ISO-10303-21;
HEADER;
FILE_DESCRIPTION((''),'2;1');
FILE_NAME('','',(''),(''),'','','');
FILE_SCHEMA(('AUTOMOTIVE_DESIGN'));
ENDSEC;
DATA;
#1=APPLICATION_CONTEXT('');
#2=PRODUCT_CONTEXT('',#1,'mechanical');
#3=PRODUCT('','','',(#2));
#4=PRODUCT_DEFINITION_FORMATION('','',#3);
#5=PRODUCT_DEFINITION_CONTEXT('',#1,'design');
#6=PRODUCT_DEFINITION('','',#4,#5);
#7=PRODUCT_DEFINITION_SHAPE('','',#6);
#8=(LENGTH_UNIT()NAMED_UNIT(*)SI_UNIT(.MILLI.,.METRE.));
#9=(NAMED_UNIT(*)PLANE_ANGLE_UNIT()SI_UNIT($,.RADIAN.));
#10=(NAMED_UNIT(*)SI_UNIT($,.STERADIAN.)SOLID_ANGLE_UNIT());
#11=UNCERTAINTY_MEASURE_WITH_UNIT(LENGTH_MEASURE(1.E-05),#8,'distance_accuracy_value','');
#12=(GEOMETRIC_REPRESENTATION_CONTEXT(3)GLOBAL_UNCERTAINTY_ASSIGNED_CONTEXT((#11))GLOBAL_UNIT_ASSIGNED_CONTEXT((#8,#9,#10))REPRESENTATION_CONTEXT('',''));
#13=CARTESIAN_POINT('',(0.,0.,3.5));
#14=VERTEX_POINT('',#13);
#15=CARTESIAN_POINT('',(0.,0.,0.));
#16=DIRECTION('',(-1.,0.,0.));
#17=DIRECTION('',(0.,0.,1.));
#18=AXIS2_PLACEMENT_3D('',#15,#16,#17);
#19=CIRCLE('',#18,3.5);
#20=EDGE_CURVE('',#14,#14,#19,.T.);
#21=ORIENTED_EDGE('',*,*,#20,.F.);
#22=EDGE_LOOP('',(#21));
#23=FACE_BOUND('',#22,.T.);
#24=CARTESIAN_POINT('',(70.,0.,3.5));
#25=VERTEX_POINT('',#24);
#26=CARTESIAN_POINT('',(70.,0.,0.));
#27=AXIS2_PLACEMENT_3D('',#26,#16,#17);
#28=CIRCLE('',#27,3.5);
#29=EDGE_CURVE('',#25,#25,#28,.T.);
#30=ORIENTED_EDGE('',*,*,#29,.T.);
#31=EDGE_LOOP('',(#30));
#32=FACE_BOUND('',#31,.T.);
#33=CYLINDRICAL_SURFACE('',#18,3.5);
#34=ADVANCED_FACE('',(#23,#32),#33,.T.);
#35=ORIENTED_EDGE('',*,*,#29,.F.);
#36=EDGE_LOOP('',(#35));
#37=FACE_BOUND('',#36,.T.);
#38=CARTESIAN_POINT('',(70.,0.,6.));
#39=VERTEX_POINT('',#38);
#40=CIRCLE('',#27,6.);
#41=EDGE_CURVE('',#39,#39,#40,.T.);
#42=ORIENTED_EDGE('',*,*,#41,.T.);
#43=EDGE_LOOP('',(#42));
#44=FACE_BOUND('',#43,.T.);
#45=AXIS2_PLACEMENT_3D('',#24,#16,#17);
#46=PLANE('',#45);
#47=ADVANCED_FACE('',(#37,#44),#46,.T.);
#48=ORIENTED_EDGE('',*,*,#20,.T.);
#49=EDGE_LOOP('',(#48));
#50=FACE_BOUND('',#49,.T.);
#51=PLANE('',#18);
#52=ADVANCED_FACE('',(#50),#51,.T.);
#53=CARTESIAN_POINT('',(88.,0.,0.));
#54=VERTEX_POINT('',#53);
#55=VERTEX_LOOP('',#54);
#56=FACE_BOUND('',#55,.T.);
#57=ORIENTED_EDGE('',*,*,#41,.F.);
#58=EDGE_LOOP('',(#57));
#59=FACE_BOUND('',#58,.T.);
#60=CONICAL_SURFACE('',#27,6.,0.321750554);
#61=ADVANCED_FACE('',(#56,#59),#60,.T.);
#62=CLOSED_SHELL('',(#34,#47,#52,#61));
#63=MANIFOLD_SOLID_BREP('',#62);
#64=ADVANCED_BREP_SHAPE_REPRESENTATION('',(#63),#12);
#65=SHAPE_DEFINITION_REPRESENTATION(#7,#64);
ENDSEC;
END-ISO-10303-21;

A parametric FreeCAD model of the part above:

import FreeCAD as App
import Part
import Sketcher

V = App.Vector
Q = App.Units.Quantity

doc = App.newDocument("Part")
body = doc.addObject("PartDesign::Body", "Body")

# Sketch on XZ plane
sketch1 = body.newObject("Sketcher::SketchObject", "Sketch")
sketch1.AttachmentSupport = (doc.getObject("XZ_Plane"), [""])
sketch1.MapMode = "FlatFace"
sketch1.addGeometry(Part.LineSegment(V(70, 6, 0), V(88, 0, 0)), False)
sketch1.addGeometry(Part.LineSegment(V(88, 0, 0), V(0, 0, 0)), False)
sketch1.addGeometry(Part.LineSegment(V(0, 0, 0), V(0, 3.5, 0)), False)
sketch1.addGeometry(Part.LineSegment(V(0, 3.5, 0), V(70, 3.5, 0)), False)
sketch1.addGeometry(Part.LineSegment(V(70, 3.5, 0), V(70, 6, 0)), False)
sketch1.addConstraint(Sketcher.Constraint("Coincident", 0, 2, 1, 1))
sketch1.addConstraint(Sketcher.Constraint("Coincident", 1, 2, 2, 1))
sketch1.addConstraint(Sketcher.Constraint("Coincident", 2, 2, 3, 1))
sketch1.addConstraint(Sketcher.Constraint("Coincident", 3, 2, 4, 1))
sketch1.addConstraint(Sketcher.Constraint("Coincident", 4, 2, 0, 1))
sketch1.addConstraint(Sketcher.Constraint("Horizontal", 1))
sketch1.addConstraint(Sketcher.Constraint("Vertical", 2))
sketch1.addConstraint(Sketcher.Constraint("Horizontal", 3))
sketch1.addConstraint(Sketcher.Constraint("Vertical", 4))
sketch1.addConstraint(Sketcher.Constraint("Coincident", 1, 2, -1, 1))
sketch1.addConstraint(Sketcher.Constraint("DistanceX", 1, 2, 1, 1, Q("88 mm")))
sketch1.addConstraint(Sketcher.Constraint("DistanceX", 3, 1, 3, 2, Q("70 mm")))
sketch1.addConstraint(Sketcher.Constraint("DistanceY", 2, 1, 2, 2, Q("3.5 mm")))
sketch1.addConstraint(Sketcher.Constraint("DistanceY", 4, 1, 4, 2, Q("2.5 mm")))
revolution = body.newObject("PartDesign::Revolution", "Revolution")
revolution.Profile = sketch1
revolution.ReferenceAxis = (sketch1, ["H_Axis"])
revolution.Angle = 360

doc.recompute()
